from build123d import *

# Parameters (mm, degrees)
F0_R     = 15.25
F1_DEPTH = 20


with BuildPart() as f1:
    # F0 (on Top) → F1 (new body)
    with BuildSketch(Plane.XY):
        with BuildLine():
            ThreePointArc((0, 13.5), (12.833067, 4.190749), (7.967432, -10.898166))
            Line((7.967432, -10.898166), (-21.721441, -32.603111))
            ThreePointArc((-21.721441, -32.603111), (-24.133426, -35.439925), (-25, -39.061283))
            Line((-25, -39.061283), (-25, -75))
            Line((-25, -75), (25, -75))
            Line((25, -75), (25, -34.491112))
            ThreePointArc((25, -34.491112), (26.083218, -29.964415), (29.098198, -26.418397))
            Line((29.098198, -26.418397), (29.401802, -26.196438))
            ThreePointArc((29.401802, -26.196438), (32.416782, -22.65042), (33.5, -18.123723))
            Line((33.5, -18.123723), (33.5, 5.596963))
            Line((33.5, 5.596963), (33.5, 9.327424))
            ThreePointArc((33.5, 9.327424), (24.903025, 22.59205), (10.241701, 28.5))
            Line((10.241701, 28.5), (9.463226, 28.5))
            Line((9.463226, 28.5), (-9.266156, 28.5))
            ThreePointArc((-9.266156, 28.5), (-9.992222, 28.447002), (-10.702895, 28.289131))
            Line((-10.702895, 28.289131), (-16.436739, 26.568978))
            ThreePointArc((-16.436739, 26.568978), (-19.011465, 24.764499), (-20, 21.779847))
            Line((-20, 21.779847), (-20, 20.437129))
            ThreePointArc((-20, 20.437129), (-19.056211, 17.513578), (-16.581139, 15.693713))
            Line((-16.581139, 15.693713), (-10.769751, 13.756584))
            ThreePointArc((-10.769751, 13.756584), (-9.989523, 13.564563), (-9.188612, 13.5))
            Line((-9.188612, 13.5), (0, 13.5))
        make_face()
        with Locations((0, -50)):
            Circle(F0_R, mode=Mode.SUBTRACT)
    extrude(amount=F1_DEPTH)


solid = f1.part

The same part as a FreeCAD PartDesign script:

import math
import FreeCAD as App
import Part
import Sketcher
from FreeCAD import Vector
Q = App.Units.Quantity

doc = App.newDocument("Part")
body = doc.addObject("PartDesign::Body", "Body")

sketch1 = doc.addObject("Sketcher::SketchObject", "Sketch")
body.addObject(sketch1)
sketch1.AttachmentSupport = (doc.XY_Plane, [""])
sketch1.MapMode = "FlatFace"
sketch1.addGeometry([
    Part.ArcOfCircle(Part.Circle(Vector(-0.000001, 0, 0), Vector(0, 0, 1), 13.5), math.radians(-53.830204), math.radians(89.999997)),
    Part.LineSegment(Vector(7.967432, -10.898166, 0), Vector(-21.721441, -32.603111, 0)),
    Part.ArcOfCircle(Part.Circle(Vector(-17.000003, -39.061282, 0), Vector(0, 0, 1), 7.999997), math.radians(126.169781), math.radians(180.000005)),
    Part.LineSegment(Vector(-25, -39.061283, 0), Vector(-25, -75, 0)),
    Part.LineSegment(Vector(-25, -75, 0), Vector(25, -75, 0)),
    Part.LineSegment(Vector(25, -75, 0), Vector(25, -34.491112, 0)),
    Part.ArcOfCircle(Part.Circle(Vector(35.000004, -34.491114, 0), Vector(0, 0, 1), 10.000004), math.radians(126.169809), math.radians(179.999986)),
    Part.LineSegment(Vector(29.098198, -26.418397, 0), Vector(29.401802, -26.196438, 0)),
    Part.ArcOfCircle(Part.Circle(Vector(23.499996, -18.123721, 0), Vector(0, 0, 1), 10.000004), math.radians(-53.830191), math.radians(-0.000014)),
    Part.LineSegment(Vector(33.5, -18.123723, 0), Vector(33.5, 9.327424, 0)),
    Part.ArcOfCircle(Part.Circle(Vector(8.233304, 2.369971, 0), Vector(0, 0, 1), 26.2071), math.radians(15.395459), math.radians(85.604794)),
    Part.LineSegment(Vector(10.241701, 28.5, 0), Vector(-9.266156, 28.5, 0)),
    Part.ArcOfCircle(Part.Circle(Vector(-9.266159, 23.500031, 0), Vector(0, 0, 1), 4.999969), math.radians(89.999969), math.radians(106.699313)),
    Part.LineSegment(Vector(-10.702895, 28.289131, 0), Vector(-16.436739, 26.568978, 0)),
    Part.ArcOfCircle(Part.Circle(Vector(-15.000001, 21.779847, 0), Vector(0, 0, 1), 4.999999), math.radians(106.699231), math.radians(180.000002)),
    Part.LineSegment(Vector(-20, 21.779847, 0), Vector(-20, 20.437129, 0)),
    Part.ArcOfCircle(Part.Circle(Vector(-15, 20.437129, 0), Vector(0, 0, 1), 5), math.radians(-179.999997), math.radians(-108.434949)),
    Part.LineSegment(Vector(-16.581139, 15.693713, 0), Vector(-10.769751, 13.756584, 0)),
    Part.ArcOfCircle(Part.Circle(Vector(-9.188609, 18.500008, 0), Vector(0, 0, 1), 5.000008), math.radians(-108.434951), math.radians(-90.000031)),
    Part.LineSegment(Vector(-9.188612, 13.5, 0), Vector(0, 13.5, 0)),
    Part.Circle(Vector(0, -50, 0), Vector(0, 0, 1), 15.25),
], False)
sketch1.addConstraint([
    Sketcher.Constraint("Coincident", 0, 1, 1, 1),
    Sketcher.Constraint("Coincident", 1, 2, 2, 1),
    Sketcher.Constraint("Coincident", 2, 2, 3, 1),
    Sketcher.Constraint("Coincident", 3, 2, 4, 1),
    Sketcher.Constraint("Coincident", 4, 2, 5, 1),
    Sketcher.Constraint("Coincident", 5, 2, 6, 2),
    Sketcher.Constraint("Coincident", 6, 1, 7, 1),
    Sketcher.Constraint("Coincident", 7, 2, 8, 1),
    Sketcher.Constraint("Coincident", 8, 2, 9, 1),
    Sketcher.Constraint("Coincident", 9, 2, 10, 1),
    Sketcher.Constraint("Coincident", 10, 2, 11, 1),
    Sketcher.Constraint("Coincident", 11, 2, 12, 1),
    Sketcher.Constraint("Coincident", 12, 2, 13, 1),
    Sketcher.Constraint("Coincident", 13, 2, 14, 1),
    Sketcher.Constraint("Coincident", 14, 2, 15, 1),
    Sketcher.Constraint("Coincident", 15, 2, 16, 1),
    Sketcher.Constraint("Coincident", 16, 2, 17, 1),
    Sketcher.Constraint("Coincident", 17, 2, 18, 1),
    Sketcher.Constraint("Coincident", 18, 2, 19, 1),
    Sketcher.Constraint("Coincident", 19, 2, 0, 2),
    Sketcher.Constraint("Vertical", 3),
    Sketcher.Constraint("Horizontal", 4),
    Sketcher.Constraint("Vertical", 5),
    Sketcher.Constraint("Vertical", 9),
    Sketcher.Constraint("Horizontal", 11),
    Sketcher.Constraint("Vertical", 15),
    Sketcher.Constraint("Horizontal", 19),
    Sketcher.Constraint("Coincident", 0, 3, -1, 1),
    Sketcher.Constraint("PointOnObject", 20, 3, -2),
    Sketcher.Constraint("PointOnObject", 19, 2, -2),
    Sketcher.Constraint("Radius", 14, Q("4.999999 mm")),
    Sketcher.Constraint("Radius", 16, Q("5 mm")),
    Sketcher.Constraint("Diameter", 20, Q("30.5 mm")),
    Sketcher.Constraint("Radius", 0, Q("13.5 mm")),
    Sketcher.Constraint("DistanceX", 4, 1, 4, 2, Q("50 mm")),
    Sketcher.Constraint("DistanceX", 14, 3, -1, 1, Q("15.000001 mm")),
    Sketcher.Constraint("DistanceY", 20, 3, -1, 1, Q("50 mm")),
    Sketcher.Constraint("DistanceX", 2, 2, -1, 1, Q("25 mm")),
    Sketcher.Constraint("DistanceY", 3, 2, -1, 1, Q("75 mm")),
    Sketcher.Constraint("DistanceX", 2, 3, 14, 3, Q("2.000002 mm")),
    Sketcher.Constraint("DistanceX", -1, 1, 8, 2, Q("33.5 mm")),
    Sketcher.Constraint("DistanceY", -1, 1, 10, 2, Q("28.5 mm")),
    Sketcher.Constraint("Radius", 10, Q("26.2071 mm")),
    Sketcher.Constraint("DistanceX", 2, 3, 8, 3, Q("40.499999 mm")),
    Sketcher.Constraint("Radius", 12, Q("4.999969 mm")),
    Sketcher.Constraint("Radius", 18, Q("5.000008 mm")),
    Sketcher.Constraint("Radius", 6, Q("10.000004 mm")),
    Sketcher.Constraint("DistanceY", 16, 3, 12, 2, Q("7.852002 mm")),
    Sketcher.Constraint("DistanceX", 19, 1, 19, 2, Q("9.188612 mm")),
    Sketcher.Constraint("DistanceY", 15, 2, 15, 1, Q("1.342718 mm")),
    Sketcher.Constraint("DistanceX", -1, 1, 6, 1, Q("29.098198 mm")),
    Sketcher.Constraint("DistanceX", -1, 1, 7, 2, Q("29.401802 mm")),
    Sketcher.Constraint("DistanceX", -1, 1, 10, 2, Q("10.241701 mm")),
    Sketcher.Constraint("DistanceX", 10, 3, 6, 3, Q("26.7667 mm")),
    Sketcher.Constraint("DistanceY", 16, 3, 12, 3, Q("3.062902 mm")),
    Sketcher.Constraint("Distance", 1, Q("36.776811 mm")),
    Sketcher.Constraint("Distance", 13, Q("5.986309 mm")),
    Sketcher.Constraint("Distance", 17, Q("6.125741 mm")),
    Sketcher.Constraint("DistanceX", 11, 2, 11, 1, Q("19.507857 mm")),
    Sketcher.Constraint("DistanceY", 3, 2, 3, 1, Q("35.938717 mm")),
    Sketcher.Constraint("DistanceY", 5, 1, 5, 2, Q("40.508888 mm")),
    Sketcher.Constraint("DistanceY", 9, 1, 9, 2, Q("27.451147 mm")),
    Sketcher.Constraint("DistanceY", 8, 3, -1, 1, Q("18.123721 mm")),
    Sketcher.Constraint("DistanceX", 12, 3, -1, 1, Q("9.266159 mm")),
    Sketcher.Constraint("DistanceX", 18, 3, -1, 1, Q("9.188609 mm")),
    Sketcher.Constraint("DistanceX", 1, 2, -1, 1, Q("21.721441 mm")),
    Sketcher.Constraint("DistanceY", 1, 2, -1, 1, Q("32.603111 mm")),
    Sketcher.Constraint("DistanceX", 13, 2, -1, 1, Q("16.436739 mm")),
    Sketcher.Constraint("DistanceY", -1, 1, 15, 2, Q("20.437129 mm")),
    Sketcher.Constraint("DistanceX", 16, 2, -1, 1, Q("16.581139 mm")),
    Sketcher.Constraint("DistanceY", 6, 3, 0, 1, Q("23.592948 mm")),
])
pad1 = doc.addObject("PartDesign::Pad", "Pad")
body.addObject(pad1)
pad1.Profile = sketch1
pad1.Length = 20

doc.recompute()
